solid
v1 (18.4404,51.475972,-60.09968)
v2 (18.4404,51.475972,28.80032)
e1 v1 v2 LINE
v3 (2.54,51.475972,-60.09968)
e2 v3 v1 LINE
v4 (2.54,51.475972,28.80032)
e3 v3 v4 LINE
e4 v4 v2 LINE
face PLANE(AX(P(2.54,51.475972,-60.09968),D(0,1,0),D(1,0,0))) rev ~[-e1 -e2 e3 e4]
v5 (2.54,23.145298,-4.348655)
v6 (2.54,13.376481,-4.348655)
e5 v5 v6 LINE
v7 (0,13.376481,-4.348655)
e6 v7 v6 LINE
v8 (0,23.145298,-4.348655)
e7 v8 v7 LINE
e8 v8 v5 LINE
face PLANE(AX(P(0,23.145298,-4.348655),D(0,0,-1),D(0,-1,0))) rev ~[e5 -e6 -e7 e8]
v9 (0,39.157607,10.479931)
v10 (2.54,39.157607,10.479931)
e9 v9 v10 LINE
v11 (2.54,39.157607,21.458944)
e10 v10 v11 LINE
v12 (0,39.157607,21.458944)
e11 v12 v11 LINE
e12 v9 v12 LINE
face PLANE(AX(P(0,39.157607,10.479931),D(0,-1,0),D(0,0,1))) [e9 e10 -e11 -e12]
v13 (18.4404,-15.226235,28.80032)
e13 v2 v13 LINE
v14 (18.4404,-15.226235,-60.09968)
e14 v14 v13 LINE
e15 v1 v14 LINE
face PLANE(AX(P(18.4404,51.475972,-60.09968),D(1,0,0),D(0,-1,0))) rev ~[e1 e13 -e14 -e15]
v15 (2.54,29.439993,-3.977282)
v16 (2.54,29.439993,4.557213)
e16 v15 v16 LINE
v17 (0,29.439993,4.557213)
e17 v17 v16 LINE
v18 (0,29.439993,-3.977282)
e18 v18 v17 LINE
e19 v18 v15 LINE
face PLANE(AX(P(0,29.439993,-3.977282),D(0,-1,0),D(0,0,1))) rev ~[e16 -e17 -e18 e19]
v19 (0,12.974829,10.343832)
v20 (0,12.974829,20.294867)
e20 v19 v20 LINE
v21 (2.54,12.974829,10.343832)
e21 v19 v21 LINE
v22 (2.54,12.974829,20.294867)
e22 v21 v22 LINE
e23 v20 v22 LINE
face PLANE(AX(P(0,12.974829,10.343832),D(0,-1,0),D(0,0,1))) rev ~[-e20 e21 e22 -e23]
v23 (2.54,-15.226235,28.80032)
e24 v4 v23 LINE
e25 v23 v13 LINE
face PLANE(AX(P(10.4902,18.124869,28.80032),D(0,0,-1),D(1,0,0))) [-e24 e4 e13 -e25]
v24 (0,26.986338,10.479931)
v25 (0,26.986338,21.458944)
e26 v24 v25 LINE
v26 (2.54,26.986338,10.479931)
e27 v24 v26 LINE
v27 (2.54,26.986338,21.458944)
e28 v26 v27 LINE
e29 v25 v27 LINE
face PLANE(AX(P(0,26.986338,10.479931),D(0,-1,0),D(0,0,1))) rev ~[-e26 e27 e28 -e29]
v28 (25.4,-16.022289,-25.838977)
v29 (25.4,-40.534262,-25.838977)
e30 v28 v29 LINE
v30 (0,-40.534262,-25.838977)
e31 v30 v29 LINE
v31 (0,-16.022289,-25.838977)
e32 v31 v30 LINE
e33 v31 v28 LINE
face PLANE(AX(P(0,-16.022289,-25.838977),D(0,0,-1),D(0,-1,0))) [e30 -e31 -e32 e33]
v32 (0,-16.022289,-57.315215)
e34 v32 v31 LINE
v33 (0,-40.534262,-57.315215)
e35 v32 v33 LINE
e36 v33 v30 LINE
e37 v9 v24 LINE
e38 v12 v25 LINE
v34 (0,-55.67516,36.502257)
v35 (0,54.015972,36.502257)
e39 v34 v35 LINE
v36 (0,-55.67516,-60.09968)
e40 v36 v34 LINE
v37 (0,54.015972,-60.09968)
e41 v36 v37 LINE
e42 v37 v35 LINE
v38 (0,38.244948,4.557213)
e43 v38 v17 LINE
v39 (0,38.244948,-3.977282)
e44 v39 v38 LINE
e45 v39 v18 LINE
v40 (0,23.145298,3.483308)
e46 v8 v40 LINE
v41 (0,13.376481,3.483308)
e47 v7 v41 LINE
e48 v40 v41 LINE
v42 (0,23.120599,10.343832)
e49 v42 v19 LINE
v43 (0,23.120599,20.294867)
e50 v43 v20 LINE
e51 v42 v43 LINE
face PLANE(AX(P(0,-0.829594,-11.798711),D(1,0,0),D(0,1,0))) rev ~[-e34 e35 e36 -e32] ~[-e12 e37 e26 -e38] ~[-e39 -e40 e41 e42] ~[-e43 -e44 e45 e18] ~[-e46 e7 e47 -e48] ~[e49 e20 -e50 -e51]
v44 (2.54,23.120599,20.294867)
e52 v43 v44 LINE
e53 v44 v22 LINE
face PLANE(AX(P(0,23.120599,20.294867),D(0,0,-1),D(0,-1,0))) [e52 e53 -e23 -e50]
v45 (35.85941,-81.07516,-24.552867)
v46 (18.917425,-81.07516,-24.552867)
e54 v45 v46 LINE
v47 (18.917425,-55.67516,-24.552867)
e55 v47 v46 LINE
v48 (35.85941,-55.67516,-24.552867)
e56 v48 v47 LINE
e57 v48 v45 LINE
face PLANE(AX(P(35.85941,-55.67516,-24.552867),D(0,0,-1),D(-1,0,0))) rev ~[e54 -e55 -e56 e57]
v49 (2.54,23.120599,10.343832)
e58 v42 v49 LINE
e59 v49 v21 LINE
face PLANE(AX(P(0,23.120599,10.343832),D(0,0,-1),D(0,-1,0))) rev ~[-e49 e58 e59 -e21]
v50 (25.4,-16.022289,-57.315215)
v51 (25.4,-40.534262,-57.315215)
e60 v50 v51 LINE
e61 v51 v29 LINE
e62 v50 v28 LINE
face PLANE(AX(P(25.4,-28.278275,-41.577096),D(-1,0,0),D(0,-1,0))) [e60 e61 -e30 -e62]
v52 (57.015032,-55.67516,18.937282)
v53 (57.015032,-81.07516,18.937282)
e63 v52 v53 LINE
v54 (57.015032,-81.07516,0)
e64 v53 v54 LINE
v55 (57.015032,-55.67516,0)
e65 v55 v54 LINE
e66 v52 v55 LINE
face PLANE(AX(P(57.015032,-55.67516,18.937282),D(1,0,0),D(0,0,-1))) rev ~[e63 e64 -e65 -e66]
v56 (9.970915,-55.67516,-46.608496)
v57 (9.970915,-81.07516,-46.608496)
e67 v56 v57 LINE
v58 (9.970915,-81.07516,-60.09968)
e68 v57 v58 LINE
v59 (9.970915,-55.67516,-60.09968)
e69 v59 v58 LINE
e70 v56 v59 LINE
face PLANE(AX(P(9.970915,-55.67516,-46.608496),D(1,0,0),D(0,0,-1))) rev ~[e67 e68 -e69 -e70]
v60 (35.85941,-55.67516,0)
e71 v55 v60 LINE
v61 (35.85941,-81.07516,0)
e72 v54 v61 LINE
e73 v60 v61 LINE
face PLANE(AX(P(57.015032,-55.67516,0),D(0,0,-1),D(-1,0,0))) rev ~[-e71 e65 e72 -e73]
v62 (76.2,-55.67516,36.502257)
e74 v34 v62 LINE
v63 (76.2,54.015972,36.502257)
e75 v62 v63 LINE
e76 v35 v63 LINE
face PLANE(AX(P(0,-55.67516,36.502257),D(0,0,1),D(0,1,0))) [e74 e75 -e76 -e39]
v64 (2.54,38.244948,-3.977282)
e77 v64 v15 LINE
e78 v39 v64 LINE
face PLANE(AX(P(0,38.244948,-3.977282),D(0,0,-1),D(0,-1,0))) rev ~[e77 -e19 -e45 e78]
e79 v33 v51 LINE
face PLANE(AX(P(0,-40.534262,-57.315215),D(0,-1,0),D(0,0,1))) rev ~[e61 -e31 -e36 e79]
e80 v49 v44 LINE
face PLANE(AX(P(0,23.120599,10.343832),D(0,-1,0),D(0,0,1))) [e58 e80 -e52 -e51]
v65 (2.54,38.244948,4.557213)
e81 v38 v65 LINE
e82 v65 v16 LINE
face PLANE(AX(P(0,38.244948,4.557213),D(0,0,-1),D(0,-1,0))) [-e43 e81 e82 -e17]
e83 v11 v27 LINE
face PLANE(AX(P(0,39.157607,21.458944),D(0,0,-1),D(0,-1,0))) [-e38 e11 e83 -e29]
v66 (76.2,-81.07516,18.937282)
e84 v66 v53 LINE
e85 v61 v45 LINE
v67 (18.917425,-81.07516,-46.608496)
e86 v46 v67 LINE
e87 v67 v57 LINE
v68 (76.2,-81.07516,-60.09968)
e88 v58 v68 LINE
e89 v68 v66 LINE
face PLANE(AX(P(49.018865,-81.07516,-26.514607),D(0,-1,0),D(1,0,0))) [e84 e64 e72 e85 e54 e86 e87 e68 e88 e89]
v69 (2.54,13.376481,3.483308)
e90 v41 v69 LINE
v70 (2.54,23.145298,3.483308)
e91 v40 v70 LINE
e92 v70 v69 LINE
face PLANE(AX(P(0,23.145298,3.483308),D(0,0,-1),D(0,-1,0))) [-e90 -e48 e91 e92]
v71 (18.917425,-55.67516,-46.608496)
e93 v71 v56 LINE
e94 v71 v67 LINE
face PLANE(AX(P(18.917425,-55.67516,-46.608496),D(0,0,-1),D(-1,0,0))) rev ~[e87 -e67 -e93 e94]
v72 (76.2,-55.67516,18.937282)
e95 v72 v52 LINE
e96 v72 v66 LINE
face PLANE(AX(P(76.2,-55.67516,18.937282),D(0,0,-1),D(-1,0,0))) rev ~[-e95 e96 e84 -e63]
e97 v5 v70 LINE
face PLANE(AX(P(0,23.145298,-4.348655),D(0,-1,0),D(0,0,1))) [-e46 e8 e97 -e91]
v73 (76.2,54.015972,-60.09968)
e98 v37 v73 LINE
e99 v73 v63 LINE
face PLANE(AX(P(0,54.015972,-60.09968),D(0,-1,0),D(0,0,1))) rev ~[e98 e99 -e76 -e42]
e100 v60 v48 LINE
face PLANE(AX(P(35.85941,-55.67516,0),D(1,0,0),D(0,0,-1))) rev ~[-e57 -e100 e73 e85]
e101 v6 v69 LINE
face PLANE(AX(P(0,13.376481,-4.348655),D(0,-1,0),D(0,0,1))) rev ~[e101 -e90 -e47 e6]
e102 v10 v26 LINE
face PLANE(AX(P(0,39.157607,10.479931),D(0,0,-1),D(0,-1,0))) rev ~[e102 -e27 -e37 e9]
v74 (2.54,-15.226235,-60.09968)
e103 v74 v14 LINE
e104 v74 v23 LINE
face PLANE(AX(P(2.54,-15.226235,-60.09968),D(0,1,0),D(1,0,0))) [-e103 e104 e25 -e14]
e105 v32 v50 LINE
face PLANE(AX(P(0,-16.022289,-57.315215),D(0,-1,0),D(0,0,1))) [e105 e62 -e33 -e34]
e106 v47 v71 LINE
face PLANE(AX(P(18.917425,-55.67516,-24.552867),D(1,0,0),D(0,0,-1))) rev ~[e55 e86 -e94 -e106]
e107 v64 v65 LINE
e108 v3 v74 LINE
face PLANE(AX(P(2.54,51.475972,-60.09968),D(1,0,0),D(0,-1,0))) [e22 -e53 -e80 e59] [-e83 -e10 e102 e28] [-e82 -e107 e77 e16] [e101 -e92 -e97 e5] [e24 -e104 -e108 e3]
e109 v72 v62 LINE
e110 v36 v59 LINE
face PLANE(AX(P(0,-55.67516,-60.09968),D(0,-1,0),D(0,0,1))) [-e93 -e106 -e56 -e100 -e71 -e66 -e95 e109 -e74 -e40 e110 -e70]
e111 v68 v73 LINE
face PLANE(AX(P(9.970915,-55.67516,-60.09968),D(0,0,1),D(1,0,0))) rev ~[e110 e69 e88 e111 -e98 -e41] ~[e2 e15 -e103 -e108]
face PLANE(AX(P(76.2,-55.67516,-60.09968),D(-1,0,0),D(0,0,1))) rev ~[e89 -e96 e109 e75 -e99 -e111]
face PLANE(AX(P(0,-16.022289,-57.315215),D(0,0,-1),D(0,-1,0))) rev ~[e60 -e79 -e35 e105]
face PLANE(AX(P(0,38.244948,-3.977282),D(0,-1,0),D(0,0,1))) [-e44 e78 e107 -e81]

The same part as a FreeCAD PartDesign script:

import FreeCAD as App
import Part
import Sketcher
Q = App.Units.Quantity

doc = App.newDocument("Part")
body = doc.addObject("PartDesign::Body", "Body")

# Sketch on YZ plane
sketch1 = doc.addObject("Sketcher::SketchObject", "Sketch")
body.addObject(sketch1)
sketch1.AttachmentSupport = (doc.YZ_Plane, [""])
sketch1.MapMode = "FlatFace"
sketch1.addGeometry(Part.LineSegment(App.Vector(-56, 37, 0), App.Vector(-56, -60, 0)), False)
sketch1.addGeometry(Part.LineSegment(App.Vector(-56, -60, 0), App.Vector(54, -60, 0)), False)
sketch1.addGeometry(Part.LineSegment(App.Vector(54, -60, 0), App.Vector(54, 37, 0)), False)
sketch1.addGeometry(Part.LineSegment(App.Vector(54, 37, 0), App.Vector(-56, 37, 0)), False)
sketch1.addConstraint(Sketcher.Constraint("Coincident", 0, 2, 1, 1))
sketch1.addConstraint(Sketcher.Constraint("Coincident", 1, 2, 2, 1))
sketch1.addConstraint(Sketcher.Constraint("Coincident", 2, 2, 3, 1))
sketch1.addConstraint(Sketcher.Constraint("Coincident", 3, 2, 0, 1))
sketch1.addConstraint(Sketcher.Constraint("Vertical", 0))
sketch1.addConstraint(Sketcher.Constraint("Horizontal", 1))
sketch1.addConstraint(Sketcher.Constraint("Vertical", 2))
sketch1.addConstraint(Sketcher.Constraint("Horizontal", 3))
sketch1.addConstraint(Sketcher.Constraint("DistanceX", 1, 1, 1, 2, Q("109.691132 mm")))
sketch1.addConstraint(Sketcher.Constraint("DistanceY", 0, 2, 0, 1, Q("96.601937 mm")))
sketch1.addConstraint(Sketcher.Constraint("DistanceX", 0, 2, -1, 1, Q("55.67516 mm")))
sketch1.addConstraint(Sketcher.Constraint("DistanceY", 0, 2, -1, 1, Q("60.09968 mm")))
pad1 = doc.addObject("PartDesign::Pad", "Pad")
body.addObject(pad1)
pad1.Profile = sketch1
pad1.Length = Q("3 in")

# Sketch on XZ plane
sketch2 = doc.addObject("Sketcher::SketchObject", "Sketch001")
body.addObject(sketch2)
sketch2.AttachmentSupport = (doc.XZ_Plane, [""])
sketch2.MapMode = "FlatFace"
sketch2.AttachmentOffset = App.Placement(App.Vector(0, 0, 55.67516), App.Rotation())
sketch2.addGeometry(Part.LineSegment(App.Vector(76, -60, 0), App.Vector(76, 19, 0)), False)
sketch2.addGeometry(Part.LineSegment(App.Vector(76, 19, 0), App.Vector(57, 19, 0)), False)
sketch2.addGeometry(Part.LineSegment(App.Vector(57, 19, 0), App.Vector(57, 0, 0)), False)
sketch2.addGeometry(Part.LineSegment(App.Vector(57, 0, 0), App.Vector(36, 0, 0)), False)
sketch2.addGeometry(Part.LineSegment(App.Vector(36, 0, 0), App.Vector(36, -25, 0)), False)
sketch2.addGeometry(Part.LineSegment(App.Vector(36, -25, 0), App.Vector(19, -25, 0)), False)
sketch2.addGeometry(Part.LineSegment(App.Vector(19, -25, 0), App.Vector(19, -47, 0)), False)
sketch2.addGeometry(Part.LineSegment(App.Vector(19, -47, 0), App.Vector(10, -47, 0)), False)
sketch2.addGeometry(Part.LineSegment(App.Vector(10, -47, 0), App.Vector(10, -60, 0)), False)
sketch2.addGeometry(Part.LineSegment(App.Vector(10, -60, 0), App.Vector(76, -60, 0)), False)
sketch2.addConstraint(Sketcher.Constraint("Coincident", 0, 2, 1, 1))
sketch2.addConstraint(Sketcher.Constraint("Coincident", 1, 2, 2, 1))
sketch2.addConstraint(Sketcher.Constraint("Coincident", 2, 2, 3, 1))
sketch2.addConstraint(Sketcher.Constraint("Coincident", 3, 2, 4, 1))
sketch2.addConstraint(Sketcher.Constraint("Coincident", 4, 2, 5, 1))
sketch2.addConstraint(Sketcher.Constraint("Coincident", 5, 2, 6, 1))
sketch2.addConstraint(Sketcher.Constraint("Coincident", 6, 2, 7, 1))
sketch2.addConstraint(Sketcher.Constraint("Coincident", 7, 2, 8, 1))
sketch2.addConstraint(Sketcher.Constraint("Coincident", 8, 2, 9, 1))
sketch2.addConstraint(Sketcher.Constraint("Coincident", 9, 2, 0, 1))
sketch2.addConstraint(Sketcher.Constraint("Vertical", 0))
sketch2.addConstraint(Sketcher.Constraint("Horizontal", 1))
sketch2.addConstraint(Sketcher.Constraint("Vertical", 2))
sketch2.addConstraint(Sketcher.Constraint("Horizontal", 3))
sketch2.addConstraint(Sketcher.Constraint("Vertical", 4))
sketch2.addConstraint(Sketcher.Constraint("Horizontal", 5))
sketch2.addConstraint(Sketcher.Constraint("Vertical", 6))
sketch2.addConstraint(Sketcher.Constraint("Horizontal", 7))
sketch2.addConstraint(Sketcher.Constraint("Vertical", 8))
sketch2.addConstraint(Sketcher.Constraint("Horizontal", 9))
sketch2.addConstraint(Sketcher.Constraint("PointOnObject", 2, 2, -1))
sketch2.addConstraint(Sketcher.Constraint("DistanceX", -1, 1, 0, 2, Q("3 in")))
sketch2.addConstraint(Sketcher.Constraint("DistanceX", 1, 2, 1, 1, Q("19.184968 mm")))
sketch2.addConstraint(Sketcher.Constraint("DistanceX", 3, 2, 3, 1, Q("21.155622 mm")))
sketch2.addConstraint(Sketcher.Constraint("DistanceX", 7, 2, 7, 1, Q("8.94651 mm")))
sketch2.addConstraint(Sketcher.Constraint("DistanceY", 6, 2, 6, 1, Q("22.05563 mm")))
sketch2.addConstraint(Sketcher.Constraint("DistanceX", 5, 2, 5, 1, Q("16.941985 mm")))
sketch2.addConstraint(Sketcher.Constraint("DistanceY", 0, 1, 0, 2, Q("79.036962 mm")))
sketch2.addConstraint(Sketcher.Constraint("DistanceY", 2, 2, 2, 1, Q("18.937282 mm")))
sketch2.addConstraint(Sketcher.Constraint("DistanceY", 4, 2, 4, 1, Q("24.552867 mm")))
pad2 = doc.addObject("PartDesign::Pad", "Pad001")
body.addObject(pad2)
pad2.Profile = sketch2
pad2.Length = Q("1 in")

# Sketch on YZ plane
sketch3 = doc.addObject("Sketcher::SketchObject", "Sketch002")
body.addObject(sketch3)
sketch3.AttachmentSupport = (doc.YZ_Plane, [""])
sketch3.MapMode = "FlatFace"
sketch3.addGeometry(Part.LineSegment(App.Vector(39, 21, 0), App.Vector(39, 10, 0)), False)
sketch3.addGeometry(Part.LineSegment(App.Vector(39, 10, 0), App.Vector(27, 10, 0)), False)
sketch3.addGeometry(Part.LineSegment(App.Vector(27, 10, 0), App.Vector(27, 21, 0)), False)
sketch3.addGeometry(Part.LineSegment(App.Vector(27, 21, 0), App.Vector(39, 21, 0)), False)
sketch3.addGeometry(Part.LineSegment(App.Vector(38, 5, 0), App.Vector(38, -4, 0)), False)
sketch3.addGeometry(Part.LineSegment(App.Vector(38, -4, 0), App.Vector(29, -4, 0)), False)
sketch3.addGeometry(Part.LineSegment(App.Vector(29, -4, 0), App.Vector(29, 5, 0)), False)
sketch3.addGeometry(Part.LineSegment(App.Vector(29, 5, 0), App.Vector(38, 5, 0)), False)
sketch3.addGeometry(Part.LineSegment(App.Vector(23, 3, 0), App.Vector(23, -4, 0)), False)
sketch3.addGeometry(Part.LineSegment(App.Vector(23, -4, 0), App.Vector(13, -4, 0)), False)
sketch3.addGeometry(Part.LineSegment(App.Vector(13, -4, 0), App.Vector(13, 3, 0)), False)
sketch3.addGeometry(Part.LineSegment(App.Vector(13, 3, 0), App.Vector(23, 3, 0)), False)
sketch3.addGeometry(Part.LineSegment(App.Vector(23, 20, 0), App.Vector(23, 10, 0)), False)
sketch3.addGeometry(Part.LineSegment(App.Vector(23, 10, 0), App.Vector(13, 10, 0)), False)
sketch3.addGeometry(Part.LineSegment(App.Vector(13, 10, 0), App.Vector(13, 20, 0)), False)
sketch3.addGeometry(Part.LineSegment(App.Vector(13, 20, 0), App.Vector(23, 20, 0)), False)
sketch3.addConstraint(Sketcher.Constraint("Coincident", 0, 2, 1, 1))
sketch3.addConstraint(Sketcher.Constraint("Coincident", 1, 2, 2, 1))
sketch3.addConstraint(Sketcher.Constraint("Coincident", 2, 2, 3, 1))
sketch3.addConstraint(Sketcher.Constraint("Coincident", 3, 2, 0, 1))
sketch3.addConstraint(Sketcher.Constraint("Coincident", 4, 2, 5, 1))
sketch3.addConstraint(Sketcher.Constraint("Coincident", 5, 2, 6, 1))
sketch3.addConstraint(Sketcher.Constraint("Coincident", 6, 2, 7, 1))
sketch3.addConstraint(Sketcher.Constraint("Coincident", 7, 2, 4, 1))
sketch3.addConstraint(Sketcher.Constraint("Coincident", 8, 2, 9, 1))
sketch3.addConstraint(Sketcher.Constraint("Coincident", 9, 2, 10, 1))
sketch3.addConstraint(Sketcher.Constraint("Coincident", 10, 2, 11, 1))
sketch3.addConstraint(Sketcher.Constraint("Coincident", 11, 2, 8, 1))
sketch3.addConstraint(Sketcher.Constraint("Coincident", 12, 2, 13, 1))
sketch3.addConstraint(Sketcher.Constraint("Coincident", 13, 2, 14, 1))
sketch3.addConstraint(Sketcher.Constraint("Coincident", 14, 2, 15, 1))
sketch3.addConstraint(Sketcher.Constraint("Coincident", 15, 2, 12, 1))
sketch3.addConstraint(Sketcher.Constraint("Vertical", 0))
sketch3.addConstraint(Sketcher.Constraint("Horizontal", 1))
sketch3.addConstraint(Sketcher.Constraint("Vertical", 2))
sketch3.addConstraint(Sketcher.Constraint("Horizontal", 3))
sketch3.addConstraint(Sketcher.Constraint("Vertical", 4))
sketch3.addConstraint(Sketcher.Constraint("Horizontal", 5))
sketch3.addConstraint(Sketcher.Constraint("Vertical", 6))
sketch3.addConstraint(Sketcher.Constraint("Horizontal", 7))
sketch3.addConstraint(Sketcher.Constraint("Vertical", 8))
sketch3.addConstraint(Sketcher.Constraint("Horizontal", 9))
sketch3.addConstraint(Sketcher.Constraint("Vertical", 10))
sketch3.addConstraint(Sketcher.Constraint("Horizontal", 11))
sketch3.addConstraint(Sketcher.Constraint("Vertical", 12))
sketch3.addConstraint(Sketcher.Constraint("Horizontal", 13))
sketch3.addConstraint(Sketcher.Constraint("Vertical", 14))
sketch3.addConstraint(Sketcher.Constraint("Horizontal", 15))
sketch3.addConstraint(Sketcher.Constraint("DistanceX", 1, 2, 1, 1, Q("12.171268 mm")))
sketch3.addConstraint(Sketcher.Constraint("DistanceX", 13, 2, 13, 1, Q("10.145769 mm")))
sketch3.addConstraint(Sketcher.Constraint("DistanceX", -1, 1, 12, 2, Q("23.120599 mm")))
sketch3.addConstraint(Sketcher.Constraint("DistanceY", 12, 2, 1, 2, Q("0.136099 mm")))
sketch3.addConstraint(Sketcher.Constraint("DistanceX", 12, 2, 11, 2, Q("0.024699 mm")))
sketch3.addConstraint(Sketcher.Constraint("DistanceX", 5, 2, 5, 1, Q("8.804955 mm")))
sketch3.addConstraint(Sketcher.Constraint("DistanceX", 9, 2, 9, 1, Q("9.768817 mm")))
sketch3.addConstraint(Sketcher.Constraint("DistanceY", 0, 2, 0, 1, Q("10.979014 mm")))
sketch3.addConstraint(Sketcher.Constraint("DistanceY", 4, 2, 4, 1, Q("8.534495 mm")))
sketch3.addConstraint(Sketcher.Constraint("DistanceY", 8, 2, 8, 1, Q("7.831962 mm")))
sketch3.addConstraint(Sketcher.Constraint("DistanceY", 12, 2, 12, 1, Q("9.951035 mm")))
sketch3.addConstraint(Sketcher.Constraint("DistanceY", -1, 1, 0, 2, Q("10.479931 mm")))
sketch3.addConstraint(Sketcher.Constraint("DistanceX", -1, 1, 1, 2, Q("26.986338 mm")))
sketch3.addConstraint(Sketcher.Constraint("DistanceY", 4, 2, -1, 1, Q("3.977282 mm")))
sketch3.addConstraint(Sketcher.Constraint("DistanceX", 4, 2, 0, 2, Q("0.912659 mm")))
sketch3.addConstraint(Sketcher.Constraint("DistanceY", 5, 2, 10, 2, Q("7.46059 mm")))
pocket1 = doc.addObject("PartDesign::Pocket", "Pocket")
body.addObject(pocket1)
pocket1.Profile = sketch3
pocket1.Length = Q("0.5 in")
pocket1.Reversed = True

# Sketch on YZ plane
sketch4 = doc.addObject("Sketcher::SketchObject", "Sketch003")
body.addObject(sketch4)
sketch4.AttachmentSupport = (doc.YZ_Plane, [""])
sketch4.MapMode = "FlatFace"
sketch4.addGeometry(Part.LineSegment(App.Vector(-16, -26, 0), App.Vector(-16, -57, 0)), False)
sketch4.addGeometry(Part.LineSegment(App.Vector(-16, -57, 0), App.Vector(-41, -57, 0)), False)
sketch4.addGeometry(Part.LineSegment(App.Vector(-41, -57, 0), App.Vector(-41, -26, 0)), False)
sketch4.addGeometry(Part.LineSegment(App.Vector(-41, -26, 0), App.Vector(-16, -26, 0)), False)
sketch4.addConstraint(Sketcher.Constraint("Coincident", 0, 2, 1, 1))
sketch4.addConstraint(Sketcher.Constraint("Coincident", 1, 2, 2, 1))
sketch4.addConstraint(Sketcher.Constraint("Coincident", 2, 2, 3, 1))
sketch4.addConstraint(Sketcher.Constraint("Coincident", 3, 2, 0, 1))
sketch4.addConstraint(Sketcher.Constraint("Vertical", 0))
sketch4.addConstraint(Sketcher.Constraint("Horizontal", 1))
sketch4.addConstraint(Sketcher.Constraint("Vertical", 2))
sketch4.addConstraint(Sketcher.Constraint("Horizontal", 3))
sketch4.addConstraint(Sketcher.Constraint("DistanceY", 0, 2, 0, 1, Q("31.476239 mm")))
sketch4.addConstraint(Sketcher.Constraint("DistanceX", 1, 2, 1, 1, Q("24.511972 mm")))
sketch4.addConstraint(Sketcher.Constraint("DistanceX", 0, 2, -1, 1, Q("16.022289 mm")))
sketch4.addConstraint(Sketcher.Constraint("DistanceY", 0, 2, -1, 1, Q("57.315215 mm")))
pocket2 = doc.addObject("PartDesign::Pocket", "Pocket001")
body.addObject(pocket2)
pocket2.Profile = sketch4
pocket2.Length = Q("1 in")
pocket2.Reversed = True

# Sketch on XY plane
sketch5 = doc.addObject("Sketcher::SketchObject", "Sketch004")
body.addObject(sketch5)
sketch5.AttachmentSupport = (doc.XY_Plane, [""])
sketch5.MapMode = "FlatFace"
sketch5.AttachmentOffset = App.Placement(App.Vector(0, 0, -60.09968), App.Rotation())
sketch5.addGeometry(Part.LineSegment(App.Vector(3, -15, 0), App.Vector(3, 51, 0)), False)
sketch5.addGeometry(Part.LineSegment(App.Vector(3, 51, 0), App.Vector(18, 51, 0)), False)
sketch5.addGeometry(Part.LineSegment(App.Vector(18, 51, 0), App.Vector(18, -15, 0)), False)
sketch5.addGeometry(Part.LineSegment(App.Vector(18, -15, 0), App.Vector(3, -15, 0)), False)
sketch5.addConstraint(Sketcher.Constraint("Coincident", 0, 2, 1, 1))
sketch5.addConstraint(Sketcher.Constraint("Coincident", 1, 2, 2, 1))
sketch5.addConstraint(Sketcher.Constraint("Coincident", 2, 2, 3, 1))
sketch5.addConstraint(Sketcher.Constraint("Coincident", 3, 2, 0, 1))
sketch5.addConstraint(Sketcher.Constraint("Vertical", 0))
sketch5.addConstraint(Sketcher.Constraint("Horizontal", 1))
sketch5.addConstraint(Sketcher.Constraint("Vertical", 2))
sketch5.addConstraint(Sketcher.Constraint("Horizontal", 3))
sketch5.addConstraint(Sketcher.Constraint("DistanceX", -1, 1, 0, 2, Q("0.1 in")))
sketch5.addConstraint(Sketcher.Constraint("DistanceX", 1, 1, 1, 2, Q("0.626 in")))
sketch5.addConstraint(Sketcher.Constraint("DistanceY", 0, 1, 0, 2, Q("66.702206 mm")))
sketch5.addConstraint(Sketcher.Constraint("DistanceY", -1, 1, 0, 2, Q("51.475972 mm")))
pocket3 = doc.addObject("PartDesign::Pocket", "Pocket002")
body.addObject(pocket3)
pocket3.Profile = sketch5
pocket3.Length = Q("3.5 in")
pocket3.Reversed = True

doc.recompute()
